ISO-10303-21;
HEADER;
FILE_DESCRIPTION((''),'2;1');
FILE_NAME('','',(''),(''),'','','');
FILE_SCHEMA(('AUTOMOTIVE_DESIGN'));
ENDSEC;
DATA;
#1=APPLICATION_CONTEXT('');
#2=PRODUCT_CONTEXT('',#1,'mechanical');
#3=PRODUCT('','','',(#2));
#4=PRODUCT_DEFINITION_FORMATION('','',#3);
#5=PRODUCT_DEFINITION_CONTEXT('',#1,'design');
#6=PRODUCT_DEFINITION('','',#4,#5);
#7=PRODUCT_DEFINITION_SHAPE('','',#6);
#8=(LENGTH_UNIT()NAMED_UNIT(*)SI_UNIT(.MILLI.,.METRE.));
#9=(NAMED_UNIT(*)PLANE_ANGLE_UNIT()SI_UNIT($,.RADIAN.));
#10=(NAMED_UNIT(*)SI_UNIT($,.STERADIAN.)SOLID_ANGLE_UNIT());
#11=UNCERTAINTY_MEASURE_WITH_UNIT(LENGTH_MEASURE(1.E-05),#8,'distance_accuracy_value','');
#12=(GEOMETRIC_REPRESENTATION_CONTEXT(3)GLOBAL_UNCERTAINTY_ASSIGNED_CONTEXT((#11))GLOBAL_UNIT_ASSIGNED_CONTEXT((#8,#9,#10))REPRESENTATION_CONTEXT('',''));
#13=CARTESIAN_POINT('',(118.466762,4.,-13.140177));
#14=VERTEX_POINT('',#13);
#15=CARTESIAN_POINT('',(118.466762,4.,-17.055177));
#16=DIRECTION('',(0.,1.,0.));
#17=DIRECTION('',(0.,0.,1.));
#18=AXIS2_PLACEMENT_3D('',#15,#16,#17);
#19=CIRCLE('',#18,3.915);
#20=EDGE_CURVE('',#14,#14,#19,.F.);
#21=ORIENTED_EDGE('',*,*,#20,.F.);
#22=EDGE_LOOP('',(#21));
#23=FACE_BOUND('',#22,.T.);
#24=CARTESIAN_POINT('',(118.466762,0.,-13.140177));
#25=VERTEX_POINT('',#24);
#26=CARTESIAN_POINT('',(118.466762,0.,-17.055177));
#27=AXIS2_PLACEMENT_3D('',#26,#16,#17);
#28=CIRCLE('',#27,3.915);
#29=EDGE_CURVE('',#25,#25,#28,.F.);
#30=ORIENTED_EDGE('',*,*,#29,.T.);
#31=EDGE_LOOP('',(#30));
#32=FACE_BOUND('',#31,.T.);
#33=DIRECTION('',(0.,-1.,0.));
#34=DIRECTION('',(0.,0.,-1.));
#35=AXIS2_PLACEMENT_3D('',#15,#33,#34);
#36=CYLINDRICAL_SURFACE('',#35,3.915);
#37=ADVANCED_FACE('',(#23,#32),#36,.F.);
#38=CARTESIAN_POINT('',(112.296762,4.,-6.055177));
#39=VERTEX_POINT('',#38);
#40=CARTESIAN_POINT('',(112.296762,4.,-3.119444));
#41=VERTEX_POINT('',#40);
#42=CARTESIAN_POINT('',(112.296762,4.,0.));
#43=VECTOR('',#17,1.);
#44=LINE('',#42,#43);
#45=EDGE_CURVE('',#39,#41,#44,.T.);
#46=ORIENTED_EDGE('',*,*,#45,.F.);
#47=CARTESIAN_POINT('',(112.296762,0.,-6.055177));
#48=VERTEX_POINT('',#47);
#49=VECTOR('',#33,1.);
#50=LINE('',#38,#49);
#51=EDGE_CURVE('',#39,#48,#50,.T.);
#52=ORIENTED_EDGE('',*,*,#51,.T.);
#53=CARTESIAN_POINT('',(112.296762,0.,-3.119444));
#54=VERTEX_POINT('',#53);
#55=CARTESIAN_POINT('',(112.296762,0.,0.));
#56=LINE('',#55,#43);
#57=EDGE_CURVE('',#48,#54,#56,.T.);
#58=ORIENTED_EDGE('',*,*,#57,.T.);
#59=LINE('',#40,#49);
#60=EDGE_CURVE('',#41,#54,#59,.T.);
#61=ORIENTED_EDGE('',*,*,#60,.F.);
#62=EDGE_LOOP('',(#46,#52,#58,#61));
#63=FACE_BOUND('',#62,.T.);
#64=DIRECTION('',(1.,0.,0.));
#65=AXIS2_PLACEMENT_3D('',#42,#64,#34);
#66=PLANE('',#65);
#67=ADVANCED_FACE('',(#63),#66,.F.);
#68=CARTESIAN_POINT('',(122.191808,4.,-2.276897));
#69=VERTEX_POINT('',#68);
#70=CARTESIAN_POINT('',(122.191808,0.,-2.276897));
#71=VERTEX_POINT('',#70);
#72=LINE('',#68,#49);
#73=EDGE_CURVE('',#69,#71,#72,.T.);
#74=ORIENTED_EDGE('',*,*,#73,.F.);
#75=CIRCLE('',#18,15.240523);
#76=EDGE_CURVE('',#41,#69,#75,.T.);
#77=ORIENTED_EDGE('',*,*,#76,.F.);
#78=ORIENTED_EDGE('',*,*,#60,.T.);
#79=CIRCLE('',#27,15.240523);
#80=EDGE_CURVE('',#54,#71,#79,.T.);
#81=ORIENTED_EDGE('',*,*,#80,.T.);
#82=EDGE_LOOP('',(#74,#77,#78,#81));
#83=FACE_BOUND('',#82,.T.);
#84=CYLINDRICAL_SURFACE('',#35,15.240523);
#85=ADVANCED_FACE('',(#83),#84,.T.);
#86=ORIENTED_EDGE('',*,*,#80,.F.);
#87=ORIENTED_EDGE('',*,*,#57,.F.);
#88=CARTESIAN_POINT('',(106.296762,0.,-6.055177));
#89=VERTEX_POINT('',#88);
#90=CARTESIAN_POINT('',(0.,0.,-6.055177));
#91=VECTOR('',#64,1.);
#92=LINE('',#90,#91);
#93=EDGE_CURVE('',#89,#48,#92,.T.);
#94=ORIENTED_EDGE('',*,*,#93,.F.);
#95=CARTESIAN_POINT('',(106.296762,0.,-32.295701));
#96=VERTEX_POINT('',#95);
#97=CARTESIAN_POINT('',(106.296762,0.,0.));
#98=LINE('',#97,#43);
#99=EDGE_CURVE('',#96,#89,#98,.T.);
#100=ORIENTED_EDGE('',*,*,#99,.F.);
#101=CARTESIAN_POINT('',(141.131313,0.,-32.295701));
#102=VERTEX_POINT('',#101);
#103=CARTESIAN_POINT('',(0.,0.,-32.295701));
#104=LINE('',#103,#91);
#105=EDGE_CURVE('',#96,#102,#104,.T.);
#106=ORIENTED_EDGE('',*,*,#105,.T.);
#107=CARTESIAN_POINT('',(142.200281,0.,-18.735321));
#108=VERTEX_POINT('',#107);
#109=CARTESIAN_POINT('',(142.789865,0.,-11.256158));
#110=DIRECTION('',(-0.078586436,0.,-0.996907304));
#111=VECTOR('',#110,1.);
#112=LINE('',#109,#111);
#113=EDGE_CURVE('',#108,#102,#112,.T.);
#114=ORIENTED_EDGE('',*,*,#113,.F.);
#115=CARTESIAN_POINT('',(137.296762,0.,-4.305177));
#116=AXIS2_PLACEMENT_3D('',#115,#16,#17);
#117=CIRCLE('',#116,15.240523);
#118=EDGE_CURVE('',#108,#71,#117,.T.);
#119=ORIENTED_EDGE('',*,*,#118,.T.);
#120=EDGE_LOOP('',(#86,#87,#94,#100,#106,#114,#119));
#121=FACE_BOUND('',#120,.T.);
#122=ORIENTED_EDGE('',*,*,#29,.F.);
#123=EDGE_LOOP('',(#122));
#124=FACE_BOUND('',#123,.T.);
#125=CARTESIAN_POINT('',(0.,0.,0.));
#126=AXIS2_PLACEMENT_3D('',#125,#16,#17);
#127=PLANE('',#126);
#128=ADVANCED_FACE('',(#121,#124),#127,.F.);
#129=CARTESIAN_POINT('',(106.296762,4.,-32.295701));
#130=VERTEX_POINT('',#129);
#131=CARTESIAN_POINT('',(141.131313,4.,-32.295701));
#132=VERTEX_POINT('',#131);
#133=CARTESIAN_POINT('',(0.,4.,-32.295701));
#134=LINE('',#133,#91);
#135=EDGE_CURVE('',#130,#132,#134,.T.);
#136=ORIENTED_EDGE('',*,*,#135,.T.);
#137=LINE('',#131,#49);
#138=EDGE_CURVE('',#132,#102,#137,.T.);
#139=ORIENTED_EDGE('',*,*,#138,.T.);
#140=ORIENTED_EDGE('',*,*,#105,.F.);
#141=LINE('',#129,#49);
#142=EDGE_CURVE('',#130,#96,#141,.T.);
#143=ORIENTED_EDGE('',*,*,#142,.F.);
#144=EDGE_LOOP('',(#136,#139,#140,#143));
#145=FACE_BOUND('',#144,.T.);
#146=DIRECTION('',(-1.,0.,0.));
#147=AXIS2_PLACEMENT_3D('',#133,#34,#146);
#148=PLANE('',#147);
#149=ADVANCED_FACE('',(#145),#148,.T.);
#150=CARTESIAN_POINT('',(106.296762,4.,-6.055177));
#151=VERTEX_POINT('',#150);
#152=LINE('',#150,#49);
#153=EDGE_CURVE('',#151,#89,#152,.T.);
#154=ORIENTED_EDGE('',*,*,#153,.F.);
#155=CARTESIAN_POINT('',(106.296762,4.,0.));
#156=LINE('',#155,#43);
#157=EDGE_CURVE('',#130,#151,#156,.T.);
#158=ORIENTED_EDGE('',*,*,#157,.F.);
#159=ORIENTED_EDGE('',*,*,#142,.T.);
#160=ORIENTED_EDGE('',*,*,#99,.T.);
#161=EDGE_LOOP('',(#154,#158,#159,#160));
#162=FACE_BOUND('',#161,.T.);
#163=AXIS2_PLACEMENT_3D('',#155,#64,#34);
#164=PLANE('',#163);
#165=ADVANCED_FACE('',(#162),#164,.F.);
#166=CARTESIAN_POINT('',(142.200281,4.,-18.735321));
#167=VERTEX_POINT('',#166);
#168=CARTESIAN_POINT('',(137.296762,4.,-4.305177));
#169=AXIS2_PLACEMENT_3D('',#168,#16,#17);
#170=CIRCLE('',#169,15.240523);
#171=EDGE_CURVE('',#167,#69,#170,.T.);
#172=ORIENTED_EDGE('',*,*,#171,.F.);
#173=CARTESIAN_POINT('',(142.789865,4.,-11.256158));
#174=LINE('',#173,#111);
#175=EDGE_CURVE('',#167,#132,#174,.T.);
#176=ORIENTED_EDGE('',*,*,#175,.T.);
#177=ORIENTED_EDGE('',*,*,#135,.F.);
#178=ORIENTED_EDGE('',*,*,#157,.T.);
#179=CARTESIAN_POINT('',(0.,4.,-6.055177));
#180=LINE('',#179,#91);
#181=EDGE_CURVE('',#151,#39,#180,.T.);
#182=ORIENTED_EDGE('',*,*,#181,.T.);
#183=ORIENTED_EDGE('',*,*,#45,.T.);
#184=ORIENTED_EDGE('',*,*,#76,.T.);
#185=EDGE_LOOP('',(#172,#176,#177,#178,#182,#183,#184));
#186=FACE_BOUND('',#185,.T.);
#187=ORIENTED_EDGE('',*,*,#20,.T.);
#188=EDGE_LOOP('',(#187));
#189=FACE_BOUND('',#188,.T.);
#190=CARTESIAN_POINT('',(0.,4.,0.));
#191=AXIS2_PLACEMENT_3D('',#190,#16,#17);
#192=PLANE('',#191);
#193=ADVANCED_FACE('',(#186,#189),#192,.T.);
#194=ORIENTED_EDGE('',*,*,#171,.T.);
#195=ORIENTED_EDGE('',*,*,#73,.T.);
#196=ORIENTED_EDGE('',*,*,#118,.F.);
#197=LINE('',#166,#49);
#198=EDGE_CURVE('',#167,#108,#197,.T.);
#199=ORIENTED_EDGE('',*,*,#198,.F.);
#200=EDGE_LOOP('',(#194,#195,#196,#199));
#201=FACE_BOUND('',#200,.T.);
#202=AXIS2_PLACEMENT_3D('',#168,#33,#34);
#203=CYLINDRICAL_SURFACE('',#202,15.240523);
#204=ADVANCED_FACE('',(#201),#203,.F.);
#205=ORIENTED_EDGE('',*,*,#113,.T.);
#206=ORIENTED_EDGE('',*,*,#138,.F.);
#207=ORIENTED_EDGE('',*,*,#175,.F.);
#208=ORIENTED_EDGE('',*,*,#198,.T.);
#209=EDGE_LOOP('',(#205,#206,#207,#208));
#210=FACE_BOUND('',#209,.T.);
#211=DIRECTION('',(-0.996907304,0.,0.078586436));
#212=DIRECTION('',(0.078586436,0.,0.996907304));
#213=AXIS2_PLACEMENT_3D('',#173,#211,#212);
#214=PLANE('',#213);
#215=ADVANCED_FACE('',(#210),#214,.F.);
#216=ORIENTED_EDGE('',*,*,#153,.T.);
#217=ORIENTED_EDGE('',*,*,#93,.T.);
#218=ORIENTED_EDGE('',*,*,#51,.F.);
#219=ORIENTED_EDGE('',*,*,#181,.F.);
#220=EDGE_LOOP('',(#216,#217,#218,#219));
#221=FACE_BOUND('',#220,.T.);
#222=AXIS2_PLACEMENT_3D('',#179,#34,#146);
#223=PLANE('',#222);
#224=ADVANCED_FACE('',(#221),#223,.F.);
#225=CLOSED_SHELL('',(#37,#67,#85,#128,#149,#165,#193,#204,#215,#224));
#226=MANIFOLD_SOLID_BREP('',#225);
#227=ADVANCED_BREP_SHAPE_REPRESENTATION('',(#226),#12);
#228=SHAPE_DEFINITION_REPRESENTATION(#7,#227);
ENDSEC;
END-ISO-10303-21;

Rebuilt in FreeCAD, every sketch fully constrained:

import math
import FreeCAD as App
import Part
import Sketcher
Q = App.Units.Quantity

doc = App.newDocument("Part")
body = doc.addObject("PartDesign::Body", "Body")

# Sketch on XZ plane
sketch1 = body.newObject("Sketcher::SketchObject", "Sketch")
sketch1.AttachmentSupport = (doc.getObject("XZ_Plane"), [""])
sketch1.MapMode = "FlatFace"
sketch1.addGeometry(Part.LineSegment(App.Vector(112.3, -6.1, 0), App.Vector(112.3, -3.1, 0)), False)
sketch1.addGeometry(Part.ArcOfCircle(Part.Circle(App.Vector(118.5, -17.1, 0), App.Vector(0, 0, 1), 15.2), math.radians(76), math.radians(114)), False)
sketch1.addGeometry(Part.ArcOfCircle(Part.Circle(App.Vector(137.3, -4.3, 0), App.Vector(0, 0, 1), 15.2), math.radians(172), math.radians(289)), False)
sketch1.addGeometry(Part.LineSegment(App.Vector(142.2, -18.7, 0), App.Vector(141.1, -32.3, 0)), False)
sketch1.addGeometry(Part.LineSegment(App.Vector(141.1, -32.3, 0), App.Vector(106.3, -32.3, 0)), False)
sketch1.addGeometry(Part.LineSegment(App.Vector(106.3, -32.3, 0), App.Vector(106.3, -6.1, 0)), False)
sketch1.addGeometry(Part.LineSegment(App.Vector(106.3, -6.1, 0), App.Vector(112.3, -6.1, 0)), False)
sketch1.addGeometry(Part.Circle(App.Vector(118.5, -17.1, 0), App.Vector(0, 0, 1), 3.9), False)
sketch1.addConstraint(Sketcher.Constraint("Coincident", 0, 2, 1, 2))
sketch1.addConstraint(Sketcher.Constraint("Coincident", 1, 1, 2, 1))
sketch1.addConstraint(Sketcher.Constraint("Coincident", 2, 2, 3, 1))
sketch1.addConstraint(Sketcher.Constraint("Coincident", 3, 2, 4, 1))
sketch1.addConstraint(Sketcher.Constraint("Coincident", 4, 2, 5, 1))
sketch1.addConstraint(Sketcher.Constraint("Coincident", 5, 2, 6, 1))
sketch1.addConstraint(Sketcher.Constraint("Coincident", 6, 2, 0, 1))
sketch1.addConstraint(Sketcher.Constraint("Vertical", 0))
sketch1.addConstraint(Sketcher.Constraint("Horizontal", 4))
sketch1.addConstraint(Sketcher.Constraint("Vertical", 5))
sketch1.addConstraint(Sketcher.Constraint("Horizontal", 6))
sketch1.addConstraint(Sketcher.Constraint("Coincident", 7, 3, 1, 3))
sketch1.addConstraint(Sketcher.Constraint("Equal", 1, 2))
sketch1.addConstraint(Sketcher.Constraint("Diameter", 7, Q("7.83 mm")))
sketch1.addConstraint(Sketcher.Constraint("DistanceX", 6, 1, 6, 2, Q("6 mm")))
sketch1.addConstraint(Sketcher.Constraint("DistanceX", 0, 2, 2, 3, Q("25 mm")))
sketch1.addConstraint(Sketcher.Constraint("DistanceY", 7, 3, 5, 2, Q("11 mm")))
sketch1.addConstraint(Sketcher.Constraint("DistanceX", 1, 3, 2, 3, Q("18.83 mm")))
sketch1.addConstraint(Sketcher.Constraint("DistanceY", 1, 3, 2, 3, Q("12.75 mm")))
sketch1.addConstraint(Sketcher.Constraint("Radius", 1, Q("15.240523 mm")))
sketch1.addConstraint(Sketcher.Constraint("DistanceX", 4, 2, 4, 1, Q("34.834551 mm")))
sketch1.addConstraint(Sketcher.Constraint("DistanceY", 3, 2, -1, 1, Q("32.295701 mm")))
sketch1.addConstraint(Sketcher.Constraint("DistanceY", 5, 1, 5, 2, Q("26.240523 mm")))
sketch1.addConstraint(Sketcher.Constraint("DistanceX", -1, 1, 1, 3, Q("118.466762 mm")))
sketch1.addConstraint(Sketcher.Constraint("DistanceX", -1, 1, 2, 2, Q("142.200281 mm")))
pad1 = body.newObject("PartDesign::Pad", "Pad")
pad1.Profile = sketch1
pad1.Length = 4
pad1.Reversed = True

doc.recompute()
